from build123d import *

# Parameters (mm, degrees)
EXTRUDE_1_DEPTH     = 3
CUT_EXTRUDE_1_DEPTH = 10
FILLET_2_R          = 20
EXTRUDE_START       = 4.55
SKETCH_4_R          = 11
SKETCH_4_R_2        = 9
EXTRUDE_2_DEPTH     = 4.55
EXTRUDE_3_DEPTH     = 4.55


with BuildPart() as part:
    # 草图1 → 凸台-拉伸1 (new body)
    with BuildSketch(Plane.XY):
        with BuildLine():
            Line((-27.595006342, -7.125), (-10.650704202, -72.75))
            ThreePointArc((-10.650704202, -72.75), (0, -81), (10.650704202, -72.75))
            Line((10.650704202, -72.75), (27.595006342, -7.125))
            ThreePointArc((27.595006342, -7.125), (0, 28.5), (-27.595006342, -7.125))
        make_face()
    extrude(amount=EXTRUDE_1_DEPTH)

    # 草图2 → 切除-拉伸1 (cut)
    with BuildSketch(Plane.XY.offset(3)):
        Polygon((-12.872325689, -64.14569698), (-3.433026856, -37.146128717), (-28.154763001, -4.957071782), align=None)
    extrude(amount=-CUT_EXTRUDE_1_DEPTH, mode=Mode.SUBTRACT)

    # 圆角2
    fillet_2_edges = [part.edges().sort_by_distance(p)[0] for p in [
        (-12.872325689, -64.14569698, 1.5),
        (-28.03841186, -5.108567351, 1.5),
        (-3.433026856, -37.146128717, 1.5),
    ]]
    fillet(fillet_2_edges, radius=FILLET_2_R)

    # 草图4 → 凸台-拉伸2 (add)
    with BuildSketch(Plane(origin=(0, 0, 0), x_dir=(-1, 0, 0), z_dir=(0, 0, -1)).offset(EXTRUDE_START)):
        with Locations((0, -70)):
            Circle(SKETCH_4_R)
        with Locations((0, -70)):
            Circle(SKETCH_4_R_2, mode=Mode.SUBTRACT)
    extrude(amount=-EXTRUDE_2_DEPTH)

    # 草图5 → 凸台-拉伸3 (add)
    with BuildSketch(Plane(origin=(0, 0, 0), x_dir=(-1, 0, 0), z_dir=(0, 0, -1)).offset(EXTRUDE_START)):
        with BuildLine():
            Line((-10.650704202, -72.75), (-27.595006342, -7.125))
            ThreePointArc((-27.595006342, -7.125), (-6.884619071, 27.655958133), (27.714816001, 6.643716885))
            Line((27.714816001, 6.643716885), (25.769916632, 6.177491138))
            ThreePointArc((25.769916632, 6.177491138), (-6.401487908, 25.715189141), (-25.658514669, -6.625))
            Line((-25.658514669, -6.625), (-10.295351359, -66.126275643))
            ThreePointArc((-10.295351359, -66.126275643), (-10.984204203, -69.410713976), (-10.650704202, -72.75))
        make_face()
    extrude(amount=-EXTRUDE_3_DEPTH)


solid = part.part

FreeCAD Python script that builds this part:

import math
import FreeCAD as App
import Part
import Sketcher


def edges_at(feature, points):
    """Names of the edges that pass closest to the given points."""
    edges = feature.Shape.Edges
    near = lambda p: min(range(len(edges)), key=lambda i: edges[i].distToShape(Part.Vertex(*p))[0])
    return sorted({f"Edge{near(p) + 1}" for p in points})


def add_polygon(sketch, points):
    """Adds a closed chain of lines whose ends are joined by coincident constraints."""
    first, n = sketch.GeometryCount, len(points)
    for a, b in zip(points, points[1:] + points[:1]):
        sketch.addGeometry(Part.LineSegment(App.Vector(*a, 0), App.Vector(*b, 0)), False)
    for i in range(n):
        sketch.addConstraint(Sketcher.Constraint("Coincident", first + i, 2, first + (i + 1) % n, 1))

doc = App.newDocument("Part")
body = doc.addObject("PartDesign::Body", "Body")

# Sketch on XY plane
sketch1 = body.newObject("Sketcher::SketchObject", "Sketch")
sketch1.AttachmentSupport = (doc.getObject("XY_Plane"), [""])
sketch1.MapMode = "FlatFace"
sketch1.addGeometry(Part.LineSegment(App.Vector(-27.595006, -7.125, 0), App.Vector(-10.650704, -72.75, 0)), False)
sketch1.addGeometry(Part.ArcOfCircle(Part.Circle(App.Vector(0, -70, 0), App.Vector(0, 0, 1), 11), math.radians(-165.522488), math.radians(-14.477512)), False)
sketch1.addGeometry(Part.LineSegment(App.Vector(10.650704, -72.75, 0), App.Vector(27.595006, -7.125, 0)), False)
sketch1.addGeometry(Part.ArcOfCircle(Part.Circle(App.Vector(0, 0, 0), App.Vector(0, 0, 1), 28.5), math.radians(-14.477512), math.radians(194.477512)), False)
sketch1.addConstraint(Sketcher.Constraint("Tangent", 0, 2, 1, 1))
sketch1.addConstraint(Sketcher.Constraint("Tangent", 1, 2, 2, 1))
sketch1.addConstraint(Sketcher.Constraint("Tangent", 2, 2, 3, 1))
sketch1.addConstraint(Sketcher.Constraint("Tangent", 3, 2, 0, 1))
sketch1.addConstraint(Sketcher.Constraint("Coincident", 3, 3, -1, 1))
sketch1.addConstraint(Sketcher.Constraint("PointOnObject", 1, 3, -2))
sketch1.addConstraint(Sketcher.Constraint("Radius", 1, 11.0))
sketch1.addConstraint(Sketcher.Constraint("Radius", 3, 28.5))
sketch1.addConstraint(Sketcher.Constraint("DistanceY", 1, 3, -1, 1, 70.0))
pad1 = body.newObject("PartDesign::Pad", "Pad")
pad1.Profile = sketch1
pad1.Length = 3

# Sketch on XY plane
sketch2 = body.newObject("Sketcher::SketchObject", "Sketch001")
sketch2.AttachmentSupport = (doc.getObject("XY_Plane"), [""])
sketch2.MapMode = "FlatFace"
sketch2.AttachmentOffset = App.Placement(App.Vector(0, 0, 3), App.Rotation())
add_polygon(sketch2, [(-12.872326, -64.145697), (-3.433027, -37.146129), (-28.154763, -4.957072)])  # lines 0-2
sketch2.addConstraint(Sketcher.Constraint("DistanceX", 2, 2, 0, 2, 9.439299))
sketch2.addConstraint(Sketcher.Constraint("Distance", 1, 40.586939))
sketch2.addConstraint(Sketcher.Constraint("Distance", 2, 61.129749))
sketch2.addConstraint(Sketcher.Constraint("DistanceY", 0, 2, -1, 1, 37.146129))
sketch2.addConstraint(Sketcher.Constraint("DistanceY", 1, 2, -1, 1, 4.957072))
sketch2.addConstraint(Sketcher.Constraint("DistanceX", 0, 2, -1, 1, 3.433027))
pocket1 = body.newObject("PartDesign::Pocket", "Pocket")
pocket1.Profile = sketch2
pocket1.Length = 10
doc.recompute()

fillet = body.newObject("PartDesign::Fillet", "Fillet")
fillet.Base = (pocket1, edges_at(pocket1, [(-12.872, -64.146, 1.5), (-28.038, -5.109, 1.5), (-3.433, -37.146, 1.5)]))
fillet.Radius = 20

# Sketch on XY plane
sketch3 = body.newObject("Sketcher::SketchObject", "Sketch002")
sketch3.AttachmentSupport = (doc.getObject("XY_Plane"), [""])
sketch3.MapMode = "FlatFace"
sketch3.AttachmentOffset = App.Placement(App.Vector(0, 0, -4.55), App.Rotation())
sketch3.addGeometry(Part.Circle(App.Vector(0, -70, 0), App.Vector(0, 0, 1), 11), False)
sketch3.addGeometry(Part.Circle(App.Vector(0, -70, 0), App.Vector(0, 0, 1), 9), False)
sketch3.addConstraint(Sketcher.Constraint("Coincident", 1, 3, 0, 3))
sketch3.addConstraint(Sketcher.Constraint("PointOnObject", 0, 3, -2))
sketch3.addConstraint(Sketcher.Constraint("Diameter", 0, 22.0))
sketch3.addConstraint(Sketcher.Constraint("Diameter", 1, 18.0))
sketch3.addConstraint(Sketcher.Constraint("DistanceY", 0, 3, -1, 1, 70.0))
pad2 = body.newObject("PartDesign::Pad", "Pad001")
pad2.Profile = sketch3
pad2.Length = 4.55

# Sketch on XY plane
sketch4 = body.newObject("Sketcher::SketchObject", "Sketch003")
sketch4.AttachmentSupport = (doc.getObject("XY_Plane"), [""])
sketch4.MapMode = "FlatFace"
sketch4.AttachmentOffset = App.Placement(App.Vector(0, 0, -4.55), App.Rotation())
sketch4.addGeometry(Part.LineSegment(App.Vector(27.595006, -7.125, 0), App.Vector(10.650704, -72.75, 0)), False)
sketch4.addGeometry(Part.ArcOfCircle(Part.Circle(App.Vector(0, -70, 0), App.Vector(0, 0, 1), 11), math.radians(-14.477512), math.radians(20.619289)), False)
sketch4.addGeometry(Part.LineSegment(App.Vector(10.295351, -66.126276, 0), App.Vector(25.658515, -6.625, 0)), False)
sketch4.addGeometry(Part.ArcOfCircle(Part.Circle(App.Vector(0, 0, 0), App.Vector(0, 0, 1), 26.5), math.radians(-14.477512), math.radians(166.519591)), False)
sketch4.addGeometry(Part.LineSegment(App.Vector(-25.769917, 6.177491, 0), App.Vector(-27.714816, 6.643717, 0)), False)
sketch4.addGeometry(Part.ArcOfCircle(Part.Circle(App.Vector(0, 0, 0), App.Vector(0, 0, 1), 28.5), math.radians(-14.477512), math.radians(166.519591)), False)
sketch4.addConstraint(Sketcher.Constraint("Tangent", 0, 2, 1, 1))
sketch4.addConstraint(Sketcher.Constraint("Coincident", 1, 2, 2, 1))
sketch4.addConstraint(Sketcher.Constraint("Tangent", 2, 2, 3, 1))
sketch4.addConstraint(Sketcher.Constraint("Coincident", 3, 2, 4, 1))
sketch4.addConstraint(Sketcher.Constraint("Coincident", 4, 2, 5, 2))
sketch4.addConstraint(Sketcher.Constraint("Tangent", 5, 1, 0, 1))
sketch4.addConstraint(Sketcher.Constraint("Coincident", 3, 3, -1, 1))
sketch4.addConstraint(Sketcher.Constraint("Coincident", 5, 3, -1, 1))
sketch4.addConstraint(Sketcher.Constraint("PointOnObject", 1, 3, -2))
sketch4.addConstraint(Sketcher.Constraint("Parallel", 0, 2))
sketch4.addConstraint(Sketcher.Constraint("Radius", 1, 11.0))
sketch4.addConstraint(Sketcher.Constraint("Radius", 3, 26.5))
sketch4.addConstraint(Sketcher.Constraint("Radius", 5, 28.5))
sketch4.addConstraint(Sketcher.Constraint("DistanceY", 1, 3, -1, 1, 70.0))
sketch4.addConstraint(Sketcher.Constraint("DistanceX", 4, 2, 3, 2, 1.944899))
sketch4.addConstraint(Sketcher.Constraint("DistanceY", -1, 1, 3, 2, 6.177491))
pad3 = body.newObject("PartDesign::Pad", "Pad002")
pad3.Profile = sketch4
pad3.Length = 4.55

doc.recompute()
